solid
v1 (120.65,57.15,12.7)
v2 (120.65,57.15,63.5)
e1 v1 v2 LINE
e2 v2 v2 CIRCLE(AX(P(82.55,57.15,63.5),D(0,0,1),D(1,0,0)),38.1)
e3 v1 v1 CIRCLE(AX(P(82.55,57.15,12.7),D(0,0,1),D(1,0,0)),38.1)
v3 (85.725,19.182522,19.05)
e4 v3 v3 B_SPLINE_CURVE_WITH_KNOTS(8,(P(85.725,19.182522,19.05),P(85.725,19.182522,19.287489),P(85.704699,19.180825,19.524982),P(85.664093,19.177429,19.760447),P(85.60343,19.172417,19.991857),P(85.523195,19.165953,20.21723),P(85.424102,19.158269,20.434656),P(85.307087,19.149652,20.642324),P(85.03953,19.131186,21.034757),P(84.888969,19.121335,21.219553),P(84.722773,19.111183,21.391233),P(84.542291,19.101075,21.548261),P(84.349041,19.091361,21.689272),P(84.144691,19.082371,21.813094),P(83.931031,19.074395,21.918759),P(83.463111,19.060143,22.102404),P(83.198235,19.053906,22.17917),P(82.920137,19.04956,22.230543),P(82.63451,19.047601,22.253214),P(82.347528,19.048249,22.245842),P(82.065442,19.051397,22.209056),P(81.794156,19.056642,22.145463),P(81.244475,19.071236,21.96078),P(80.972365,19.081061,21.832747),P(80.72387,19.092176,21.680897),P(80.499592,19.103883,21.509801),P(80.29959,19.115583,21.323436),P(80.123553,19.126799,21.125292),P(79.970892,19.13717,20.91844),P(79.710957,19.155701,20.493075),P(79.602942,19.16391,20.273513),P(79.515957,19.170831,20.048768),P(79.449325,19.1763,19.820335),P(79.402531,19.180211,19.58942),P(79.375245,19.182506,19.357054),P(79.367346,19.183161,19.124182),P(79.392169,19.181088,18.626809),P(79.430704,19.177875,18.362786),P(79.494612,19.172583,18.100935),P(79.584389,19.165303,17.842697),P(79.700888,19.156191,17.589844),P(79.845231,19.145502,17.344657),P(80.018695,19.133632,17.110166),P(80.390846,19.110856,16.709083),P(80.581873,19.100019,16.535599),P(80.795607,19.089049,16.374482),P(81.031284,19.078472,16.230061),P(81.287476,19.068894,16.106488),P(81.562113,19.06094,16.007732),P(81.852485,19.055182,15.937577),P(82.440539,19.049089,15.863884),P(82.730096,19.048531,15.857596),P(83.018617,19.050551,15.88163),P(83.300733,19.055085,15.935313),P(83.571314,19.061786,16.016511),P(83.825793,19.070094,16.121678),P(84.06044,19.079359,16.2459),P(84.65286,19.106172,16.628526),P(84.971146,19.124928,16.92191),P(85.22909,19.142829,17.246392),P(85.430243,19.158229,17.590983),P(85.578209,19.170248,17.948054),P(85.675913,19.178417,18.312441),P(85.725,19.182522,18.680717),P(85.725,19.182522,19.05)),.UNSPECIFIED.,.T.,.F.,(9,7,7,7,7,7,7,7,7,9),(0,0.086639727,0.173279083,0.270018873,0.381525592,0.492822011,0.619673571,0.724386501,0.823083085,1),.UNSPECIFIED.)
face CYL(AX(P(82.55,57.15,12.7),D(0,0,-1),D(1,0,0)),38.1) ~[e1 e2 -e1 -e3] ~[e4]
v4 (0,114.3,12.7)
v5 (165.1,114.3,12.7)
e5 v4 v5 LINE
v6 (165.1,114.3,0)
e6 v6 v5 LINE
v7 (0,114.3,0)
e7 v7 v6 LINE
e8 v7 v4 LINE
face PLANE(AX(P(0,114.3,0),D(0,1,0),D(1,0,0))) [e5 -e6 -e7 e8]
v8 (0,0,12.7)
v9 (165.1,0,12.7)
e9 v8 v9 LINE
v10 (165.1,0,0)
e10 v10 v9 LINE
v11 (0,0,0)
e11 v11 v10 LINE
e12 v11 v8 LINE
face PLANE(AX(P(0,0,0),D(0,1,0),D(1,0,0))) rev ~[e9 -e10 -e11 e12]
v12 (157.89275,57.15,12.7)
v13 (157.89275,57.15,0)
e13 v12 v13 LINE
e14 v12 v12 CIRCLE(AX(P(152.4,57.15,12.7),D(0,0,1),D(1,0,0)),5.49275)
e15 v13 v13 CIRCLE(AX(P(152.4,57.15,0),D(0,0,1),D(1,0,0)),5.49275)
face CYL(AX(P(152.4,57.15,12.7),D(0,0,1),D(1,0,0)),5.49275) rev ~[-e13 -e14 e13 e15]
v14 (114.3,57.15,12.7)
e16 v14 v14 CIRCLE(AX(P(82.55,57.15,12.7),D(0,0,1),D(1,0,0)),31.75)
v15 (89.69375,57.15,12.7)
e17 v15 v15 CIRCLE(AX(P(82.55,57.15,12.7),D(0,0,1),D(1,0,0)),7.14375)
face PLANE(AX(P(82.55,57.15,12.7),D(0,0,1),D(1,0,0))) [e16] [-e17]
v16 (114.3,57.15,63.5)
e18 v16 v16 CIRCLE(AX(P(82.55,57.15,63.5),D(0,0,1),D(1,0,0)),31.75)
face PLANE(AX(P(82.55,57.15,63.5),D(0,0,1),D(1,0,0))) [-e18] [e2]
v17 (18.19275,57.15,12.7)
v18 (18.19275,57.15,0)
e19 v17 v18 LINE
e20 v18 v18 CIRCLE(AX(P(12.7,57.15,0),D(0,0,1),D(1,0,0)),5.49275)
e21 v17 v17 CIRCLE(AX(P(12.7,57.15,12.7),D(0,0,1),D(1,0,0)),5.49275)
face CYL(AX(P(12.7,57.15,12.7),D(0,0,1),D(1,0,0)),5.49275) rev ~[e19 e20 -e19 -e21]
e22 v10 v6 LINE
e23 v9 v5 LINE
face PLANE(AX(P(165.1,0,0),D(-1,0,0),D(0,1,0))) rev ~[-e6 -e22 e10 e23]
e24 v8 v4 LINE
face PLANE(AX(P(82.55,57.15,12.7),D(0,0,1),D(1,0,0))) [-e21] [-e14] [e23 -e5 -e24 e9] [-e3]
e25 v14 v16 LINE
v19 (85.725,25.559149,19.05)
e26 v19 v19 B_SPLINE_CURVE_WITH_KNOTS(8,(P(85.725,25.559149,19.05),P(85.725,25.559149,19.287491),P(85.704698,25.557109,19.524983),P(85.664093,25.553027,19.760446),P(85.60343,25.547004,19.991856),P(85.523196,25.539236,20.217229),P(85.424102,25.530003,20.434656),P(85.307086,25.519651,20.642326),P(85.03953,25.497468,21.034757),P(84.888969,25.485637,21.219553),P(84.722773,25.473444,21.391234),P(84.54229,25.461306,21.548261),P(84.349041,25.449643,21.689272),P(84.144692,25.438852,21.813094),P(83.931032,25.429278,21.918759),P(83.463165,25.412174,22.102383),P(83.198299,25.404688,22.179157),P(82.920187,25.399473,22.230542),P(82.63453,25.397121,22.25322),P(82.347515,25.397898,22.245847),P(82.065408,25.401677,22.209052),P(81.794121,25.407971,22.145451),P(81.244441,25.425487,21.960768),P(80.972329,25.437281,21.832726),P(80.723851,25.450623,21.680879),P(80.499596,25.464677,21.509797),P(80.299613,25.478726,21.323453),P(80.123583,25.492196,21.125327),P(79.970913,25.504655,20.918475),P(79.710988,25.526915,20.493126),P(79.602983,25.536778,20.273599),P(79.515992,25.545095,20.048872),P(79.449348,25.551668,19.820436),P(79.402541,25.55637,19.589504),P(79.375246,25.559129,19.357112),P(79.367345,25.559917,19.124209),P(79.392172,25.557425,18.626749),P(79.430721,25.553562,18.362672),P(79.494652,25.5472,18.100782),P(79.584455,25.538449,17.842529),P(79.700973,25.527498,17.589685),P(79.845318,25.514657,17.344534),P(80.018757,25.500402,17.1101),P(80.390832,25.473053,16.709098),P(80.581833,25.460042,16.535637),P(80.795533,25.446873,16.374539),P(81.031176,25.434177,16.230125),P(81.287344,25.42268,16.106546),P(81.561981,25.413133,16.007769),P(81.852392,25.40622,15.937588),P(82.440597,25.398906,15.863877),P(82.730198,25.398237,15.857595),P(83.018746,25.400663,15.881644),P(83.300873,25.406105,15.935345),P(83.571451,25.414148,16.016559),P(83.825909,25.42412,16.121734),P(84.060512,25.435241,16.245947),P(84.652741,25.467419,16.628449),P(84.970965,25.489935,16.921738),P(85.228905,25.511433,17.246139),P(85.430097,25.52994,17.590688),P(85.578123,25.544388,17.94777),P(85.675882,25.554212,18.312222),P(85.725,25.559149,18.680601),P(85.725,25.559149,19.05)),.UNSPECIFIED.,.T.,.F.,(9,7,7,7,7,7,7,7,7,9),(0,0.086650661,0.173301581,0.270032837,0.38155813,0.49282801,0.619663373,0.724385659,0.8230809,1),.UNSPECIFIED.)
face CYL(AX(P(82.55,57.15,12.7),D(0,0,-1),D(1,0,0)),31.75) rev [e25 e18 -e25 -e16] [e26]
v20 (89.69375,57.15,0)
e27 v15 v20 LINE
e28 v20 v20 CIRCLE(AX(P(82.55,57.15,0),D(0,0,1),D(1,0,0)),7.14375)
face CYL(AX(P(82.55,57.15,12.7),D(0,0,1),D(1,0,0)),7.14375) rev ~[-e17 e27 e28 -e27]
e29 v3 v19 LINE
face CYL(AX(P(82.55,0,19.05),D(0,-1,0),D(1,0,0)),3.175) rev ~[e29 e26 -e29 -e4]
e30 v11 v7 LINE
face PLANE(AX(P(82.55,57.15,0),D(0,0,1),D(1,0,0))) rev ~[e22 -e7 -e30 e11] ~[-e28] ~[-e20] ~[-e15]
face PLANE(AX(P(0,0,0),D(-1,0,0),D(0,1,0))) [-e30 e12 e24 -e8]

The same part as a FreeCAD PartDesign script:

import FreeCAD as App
import Part
import Sketcher

V = App.Vector
Q = App.Units.Quantity


def add_polygon(sketch, points):
    """Adds a closed chain of lines whose ends are joined by coincident constraints."""
    first, n = sketch.GeometryCount, len(points)
    for a, b in zip(points, points[1:] + points[:1]):
        sketch.addGeometry(Part.LineSegment(App.Vector(*a, 0), App.Vector(*b, 0)), False)
    for i in range(n):
        sketch.addConstraint(Sketcher.Constraint("Coincident", first + i, 2, first + (i + 1) % n, 1))

doc = App.newDocument("Part")
body = doc.addObject("PartDesign::Body", "Body")

sketch1 = body.newObject("Sketcher::SketchObject", "Sketch")
sketch1.AttachmentSupport = (doc.getObject("XY_Plane"), [""])
sketch1.MapMode = "FlatFace"
add_polygon(sketch1, [(0, 114), (0, 0), (165, 0), (165, 114)])
sketch1.addConstraint([
    Sketcher.Constraint("Vertical", 0),
    Sketcher.Constraint("Horizontal", 1),
    Sketcher.Constraint("Vertical", 2),
    Sketcher.Constraint("Horizontal", 3),
    Sketcher.Constraint("Coincident", 0, 2, -1, 1),
    Sketcher.Constraint("DistanceX", 1, 1, 1, 2, Q("6.5 in")),
    Sketcher.Constraint("DistanceY", 0, 2, 0, 1, Q("4.5 in")),
])
pad1 = body.newObject("PartDesign::Pad", "Pad")
pad1.Profile = sketch1
pad1.Length = Q("0.5 in")

sketch2 = body.newObject("Sketcher::SketchObject", "Sketch001")
sketch2.AttachmentSupport = (doc.getObject("XY_Plane"), [""])
sketch2.MapMode = "FlatFace"
sketch2.AttachmentOffset = App.Placement(V(0, 0, 0.5 * 25.4), App.Rotation())
sketch2.addGeometry([
    Part.Circle(V(83, 57, 0), V(0, 0, 1), 38),
    Part.Circle(V(83, 57, 0), V(0, 0, 1), 32),
], False)
sketch2.addConstraint([
    Sketcher.Constraint("Coincident", 1, 3, 0, 3),
    Sketcher.Constraint("Diameter", 0, Q("3 in")),
    Sketcher.Constraint("Diameter", 1, Q("2.5 in")),
    Sketcher.Constraint("DistanceX", -1, 1, 0, 3, Q("3.25 in")),
    Sketcher.Constraint("DistanceY", -1, 1, 0, 3, Q("2.25 in")),
])
pad2 = body.newObject("PartDesign::Pad", "Pad001")
pad2.Profile = sketch2
pad2.Length = Q("2 in")

sketch3 = body.newObject("Sketcher::SketchObject", "Sketch002")
sketch3.AttachmentSupport = (doc.getObject("XY_Plane"), [""])
sketch3.MapMode = "FlatFace"
sketch3.AttachmentOffset = App.Placement(V(0, 0, 0.5 * 25.4), App.Rotation())
sketch3.addGeometry([
    Part.Circle(V(152, 57, 0), V(0, 0, 1), 5),
    Part.Circle(V(13, 57, 0), V(0, 0, 1), 5),
    Part.Circle(V(83, 57, 0), V(0, 0, 1), 7),
], False)
sketch3.addConstraint([
    Sketcher.Constraint("Equal", 0, 1),
    Sketcher.Constraint("Horizontal", 0, 3, 1, 3),
    Sketcher.Constraint("Horizontal", 1, 3, 2, 3),
    Sketcher.Constraint("Diameter", 2, Q("0.5625 in")),
    Sketcher.Constraint("DistanceX", -1, 1, 0, 3, Q("6 in")),
    Sketcher.Constraint("Diameter", 0, Q("0.4325 in")),
    Sketcher.Constraint("DistanceX", -1, 1, 1, 3, Q("0.5 in")),
    Sketcher.Constraint("DistanceY", -1, 1, 0, 3, Q("2.25 in")),
    Sketcher.Constraint("DistanceX", -1, 1, 2, 3, Q("3.25 in")),
])
pocket1 = body.newObject("PartDesign::Pocket", "Pocket")
pocket1.Profile = sketch3
pocket1.Length = Q("1 in")

sketch4 = body.newObject("Sketcher::SketchObject", "Sketch003")
sketch4.AttachmentSupport = (doc.getObject("XZ_Plane"), [""])
sketch4.MapMode = "FlatFace"
sketch4.addGeometry(Part.Circle(V(82.5, 19.1, 0), V(0, 0, 1), 3.2), False)
sketch4.addConstraint([
    Sketcher.Constraint("Diameter", 0, Q("0.25 in")),
    Sketcher.Constraint("DistanceX", -1, 1, 0, 3, Q("3.25 in")),
    Sketcher.Constraint("DistanceY", -1, 1, 0, 3, Q("0.75 in")),
])
pocket2 = body.newObject("PartDesign::Pocket", "Pocket001")
pocket2.Profile = sketch4
pocket2.Length = Q("3 in")

doc.recompute()
